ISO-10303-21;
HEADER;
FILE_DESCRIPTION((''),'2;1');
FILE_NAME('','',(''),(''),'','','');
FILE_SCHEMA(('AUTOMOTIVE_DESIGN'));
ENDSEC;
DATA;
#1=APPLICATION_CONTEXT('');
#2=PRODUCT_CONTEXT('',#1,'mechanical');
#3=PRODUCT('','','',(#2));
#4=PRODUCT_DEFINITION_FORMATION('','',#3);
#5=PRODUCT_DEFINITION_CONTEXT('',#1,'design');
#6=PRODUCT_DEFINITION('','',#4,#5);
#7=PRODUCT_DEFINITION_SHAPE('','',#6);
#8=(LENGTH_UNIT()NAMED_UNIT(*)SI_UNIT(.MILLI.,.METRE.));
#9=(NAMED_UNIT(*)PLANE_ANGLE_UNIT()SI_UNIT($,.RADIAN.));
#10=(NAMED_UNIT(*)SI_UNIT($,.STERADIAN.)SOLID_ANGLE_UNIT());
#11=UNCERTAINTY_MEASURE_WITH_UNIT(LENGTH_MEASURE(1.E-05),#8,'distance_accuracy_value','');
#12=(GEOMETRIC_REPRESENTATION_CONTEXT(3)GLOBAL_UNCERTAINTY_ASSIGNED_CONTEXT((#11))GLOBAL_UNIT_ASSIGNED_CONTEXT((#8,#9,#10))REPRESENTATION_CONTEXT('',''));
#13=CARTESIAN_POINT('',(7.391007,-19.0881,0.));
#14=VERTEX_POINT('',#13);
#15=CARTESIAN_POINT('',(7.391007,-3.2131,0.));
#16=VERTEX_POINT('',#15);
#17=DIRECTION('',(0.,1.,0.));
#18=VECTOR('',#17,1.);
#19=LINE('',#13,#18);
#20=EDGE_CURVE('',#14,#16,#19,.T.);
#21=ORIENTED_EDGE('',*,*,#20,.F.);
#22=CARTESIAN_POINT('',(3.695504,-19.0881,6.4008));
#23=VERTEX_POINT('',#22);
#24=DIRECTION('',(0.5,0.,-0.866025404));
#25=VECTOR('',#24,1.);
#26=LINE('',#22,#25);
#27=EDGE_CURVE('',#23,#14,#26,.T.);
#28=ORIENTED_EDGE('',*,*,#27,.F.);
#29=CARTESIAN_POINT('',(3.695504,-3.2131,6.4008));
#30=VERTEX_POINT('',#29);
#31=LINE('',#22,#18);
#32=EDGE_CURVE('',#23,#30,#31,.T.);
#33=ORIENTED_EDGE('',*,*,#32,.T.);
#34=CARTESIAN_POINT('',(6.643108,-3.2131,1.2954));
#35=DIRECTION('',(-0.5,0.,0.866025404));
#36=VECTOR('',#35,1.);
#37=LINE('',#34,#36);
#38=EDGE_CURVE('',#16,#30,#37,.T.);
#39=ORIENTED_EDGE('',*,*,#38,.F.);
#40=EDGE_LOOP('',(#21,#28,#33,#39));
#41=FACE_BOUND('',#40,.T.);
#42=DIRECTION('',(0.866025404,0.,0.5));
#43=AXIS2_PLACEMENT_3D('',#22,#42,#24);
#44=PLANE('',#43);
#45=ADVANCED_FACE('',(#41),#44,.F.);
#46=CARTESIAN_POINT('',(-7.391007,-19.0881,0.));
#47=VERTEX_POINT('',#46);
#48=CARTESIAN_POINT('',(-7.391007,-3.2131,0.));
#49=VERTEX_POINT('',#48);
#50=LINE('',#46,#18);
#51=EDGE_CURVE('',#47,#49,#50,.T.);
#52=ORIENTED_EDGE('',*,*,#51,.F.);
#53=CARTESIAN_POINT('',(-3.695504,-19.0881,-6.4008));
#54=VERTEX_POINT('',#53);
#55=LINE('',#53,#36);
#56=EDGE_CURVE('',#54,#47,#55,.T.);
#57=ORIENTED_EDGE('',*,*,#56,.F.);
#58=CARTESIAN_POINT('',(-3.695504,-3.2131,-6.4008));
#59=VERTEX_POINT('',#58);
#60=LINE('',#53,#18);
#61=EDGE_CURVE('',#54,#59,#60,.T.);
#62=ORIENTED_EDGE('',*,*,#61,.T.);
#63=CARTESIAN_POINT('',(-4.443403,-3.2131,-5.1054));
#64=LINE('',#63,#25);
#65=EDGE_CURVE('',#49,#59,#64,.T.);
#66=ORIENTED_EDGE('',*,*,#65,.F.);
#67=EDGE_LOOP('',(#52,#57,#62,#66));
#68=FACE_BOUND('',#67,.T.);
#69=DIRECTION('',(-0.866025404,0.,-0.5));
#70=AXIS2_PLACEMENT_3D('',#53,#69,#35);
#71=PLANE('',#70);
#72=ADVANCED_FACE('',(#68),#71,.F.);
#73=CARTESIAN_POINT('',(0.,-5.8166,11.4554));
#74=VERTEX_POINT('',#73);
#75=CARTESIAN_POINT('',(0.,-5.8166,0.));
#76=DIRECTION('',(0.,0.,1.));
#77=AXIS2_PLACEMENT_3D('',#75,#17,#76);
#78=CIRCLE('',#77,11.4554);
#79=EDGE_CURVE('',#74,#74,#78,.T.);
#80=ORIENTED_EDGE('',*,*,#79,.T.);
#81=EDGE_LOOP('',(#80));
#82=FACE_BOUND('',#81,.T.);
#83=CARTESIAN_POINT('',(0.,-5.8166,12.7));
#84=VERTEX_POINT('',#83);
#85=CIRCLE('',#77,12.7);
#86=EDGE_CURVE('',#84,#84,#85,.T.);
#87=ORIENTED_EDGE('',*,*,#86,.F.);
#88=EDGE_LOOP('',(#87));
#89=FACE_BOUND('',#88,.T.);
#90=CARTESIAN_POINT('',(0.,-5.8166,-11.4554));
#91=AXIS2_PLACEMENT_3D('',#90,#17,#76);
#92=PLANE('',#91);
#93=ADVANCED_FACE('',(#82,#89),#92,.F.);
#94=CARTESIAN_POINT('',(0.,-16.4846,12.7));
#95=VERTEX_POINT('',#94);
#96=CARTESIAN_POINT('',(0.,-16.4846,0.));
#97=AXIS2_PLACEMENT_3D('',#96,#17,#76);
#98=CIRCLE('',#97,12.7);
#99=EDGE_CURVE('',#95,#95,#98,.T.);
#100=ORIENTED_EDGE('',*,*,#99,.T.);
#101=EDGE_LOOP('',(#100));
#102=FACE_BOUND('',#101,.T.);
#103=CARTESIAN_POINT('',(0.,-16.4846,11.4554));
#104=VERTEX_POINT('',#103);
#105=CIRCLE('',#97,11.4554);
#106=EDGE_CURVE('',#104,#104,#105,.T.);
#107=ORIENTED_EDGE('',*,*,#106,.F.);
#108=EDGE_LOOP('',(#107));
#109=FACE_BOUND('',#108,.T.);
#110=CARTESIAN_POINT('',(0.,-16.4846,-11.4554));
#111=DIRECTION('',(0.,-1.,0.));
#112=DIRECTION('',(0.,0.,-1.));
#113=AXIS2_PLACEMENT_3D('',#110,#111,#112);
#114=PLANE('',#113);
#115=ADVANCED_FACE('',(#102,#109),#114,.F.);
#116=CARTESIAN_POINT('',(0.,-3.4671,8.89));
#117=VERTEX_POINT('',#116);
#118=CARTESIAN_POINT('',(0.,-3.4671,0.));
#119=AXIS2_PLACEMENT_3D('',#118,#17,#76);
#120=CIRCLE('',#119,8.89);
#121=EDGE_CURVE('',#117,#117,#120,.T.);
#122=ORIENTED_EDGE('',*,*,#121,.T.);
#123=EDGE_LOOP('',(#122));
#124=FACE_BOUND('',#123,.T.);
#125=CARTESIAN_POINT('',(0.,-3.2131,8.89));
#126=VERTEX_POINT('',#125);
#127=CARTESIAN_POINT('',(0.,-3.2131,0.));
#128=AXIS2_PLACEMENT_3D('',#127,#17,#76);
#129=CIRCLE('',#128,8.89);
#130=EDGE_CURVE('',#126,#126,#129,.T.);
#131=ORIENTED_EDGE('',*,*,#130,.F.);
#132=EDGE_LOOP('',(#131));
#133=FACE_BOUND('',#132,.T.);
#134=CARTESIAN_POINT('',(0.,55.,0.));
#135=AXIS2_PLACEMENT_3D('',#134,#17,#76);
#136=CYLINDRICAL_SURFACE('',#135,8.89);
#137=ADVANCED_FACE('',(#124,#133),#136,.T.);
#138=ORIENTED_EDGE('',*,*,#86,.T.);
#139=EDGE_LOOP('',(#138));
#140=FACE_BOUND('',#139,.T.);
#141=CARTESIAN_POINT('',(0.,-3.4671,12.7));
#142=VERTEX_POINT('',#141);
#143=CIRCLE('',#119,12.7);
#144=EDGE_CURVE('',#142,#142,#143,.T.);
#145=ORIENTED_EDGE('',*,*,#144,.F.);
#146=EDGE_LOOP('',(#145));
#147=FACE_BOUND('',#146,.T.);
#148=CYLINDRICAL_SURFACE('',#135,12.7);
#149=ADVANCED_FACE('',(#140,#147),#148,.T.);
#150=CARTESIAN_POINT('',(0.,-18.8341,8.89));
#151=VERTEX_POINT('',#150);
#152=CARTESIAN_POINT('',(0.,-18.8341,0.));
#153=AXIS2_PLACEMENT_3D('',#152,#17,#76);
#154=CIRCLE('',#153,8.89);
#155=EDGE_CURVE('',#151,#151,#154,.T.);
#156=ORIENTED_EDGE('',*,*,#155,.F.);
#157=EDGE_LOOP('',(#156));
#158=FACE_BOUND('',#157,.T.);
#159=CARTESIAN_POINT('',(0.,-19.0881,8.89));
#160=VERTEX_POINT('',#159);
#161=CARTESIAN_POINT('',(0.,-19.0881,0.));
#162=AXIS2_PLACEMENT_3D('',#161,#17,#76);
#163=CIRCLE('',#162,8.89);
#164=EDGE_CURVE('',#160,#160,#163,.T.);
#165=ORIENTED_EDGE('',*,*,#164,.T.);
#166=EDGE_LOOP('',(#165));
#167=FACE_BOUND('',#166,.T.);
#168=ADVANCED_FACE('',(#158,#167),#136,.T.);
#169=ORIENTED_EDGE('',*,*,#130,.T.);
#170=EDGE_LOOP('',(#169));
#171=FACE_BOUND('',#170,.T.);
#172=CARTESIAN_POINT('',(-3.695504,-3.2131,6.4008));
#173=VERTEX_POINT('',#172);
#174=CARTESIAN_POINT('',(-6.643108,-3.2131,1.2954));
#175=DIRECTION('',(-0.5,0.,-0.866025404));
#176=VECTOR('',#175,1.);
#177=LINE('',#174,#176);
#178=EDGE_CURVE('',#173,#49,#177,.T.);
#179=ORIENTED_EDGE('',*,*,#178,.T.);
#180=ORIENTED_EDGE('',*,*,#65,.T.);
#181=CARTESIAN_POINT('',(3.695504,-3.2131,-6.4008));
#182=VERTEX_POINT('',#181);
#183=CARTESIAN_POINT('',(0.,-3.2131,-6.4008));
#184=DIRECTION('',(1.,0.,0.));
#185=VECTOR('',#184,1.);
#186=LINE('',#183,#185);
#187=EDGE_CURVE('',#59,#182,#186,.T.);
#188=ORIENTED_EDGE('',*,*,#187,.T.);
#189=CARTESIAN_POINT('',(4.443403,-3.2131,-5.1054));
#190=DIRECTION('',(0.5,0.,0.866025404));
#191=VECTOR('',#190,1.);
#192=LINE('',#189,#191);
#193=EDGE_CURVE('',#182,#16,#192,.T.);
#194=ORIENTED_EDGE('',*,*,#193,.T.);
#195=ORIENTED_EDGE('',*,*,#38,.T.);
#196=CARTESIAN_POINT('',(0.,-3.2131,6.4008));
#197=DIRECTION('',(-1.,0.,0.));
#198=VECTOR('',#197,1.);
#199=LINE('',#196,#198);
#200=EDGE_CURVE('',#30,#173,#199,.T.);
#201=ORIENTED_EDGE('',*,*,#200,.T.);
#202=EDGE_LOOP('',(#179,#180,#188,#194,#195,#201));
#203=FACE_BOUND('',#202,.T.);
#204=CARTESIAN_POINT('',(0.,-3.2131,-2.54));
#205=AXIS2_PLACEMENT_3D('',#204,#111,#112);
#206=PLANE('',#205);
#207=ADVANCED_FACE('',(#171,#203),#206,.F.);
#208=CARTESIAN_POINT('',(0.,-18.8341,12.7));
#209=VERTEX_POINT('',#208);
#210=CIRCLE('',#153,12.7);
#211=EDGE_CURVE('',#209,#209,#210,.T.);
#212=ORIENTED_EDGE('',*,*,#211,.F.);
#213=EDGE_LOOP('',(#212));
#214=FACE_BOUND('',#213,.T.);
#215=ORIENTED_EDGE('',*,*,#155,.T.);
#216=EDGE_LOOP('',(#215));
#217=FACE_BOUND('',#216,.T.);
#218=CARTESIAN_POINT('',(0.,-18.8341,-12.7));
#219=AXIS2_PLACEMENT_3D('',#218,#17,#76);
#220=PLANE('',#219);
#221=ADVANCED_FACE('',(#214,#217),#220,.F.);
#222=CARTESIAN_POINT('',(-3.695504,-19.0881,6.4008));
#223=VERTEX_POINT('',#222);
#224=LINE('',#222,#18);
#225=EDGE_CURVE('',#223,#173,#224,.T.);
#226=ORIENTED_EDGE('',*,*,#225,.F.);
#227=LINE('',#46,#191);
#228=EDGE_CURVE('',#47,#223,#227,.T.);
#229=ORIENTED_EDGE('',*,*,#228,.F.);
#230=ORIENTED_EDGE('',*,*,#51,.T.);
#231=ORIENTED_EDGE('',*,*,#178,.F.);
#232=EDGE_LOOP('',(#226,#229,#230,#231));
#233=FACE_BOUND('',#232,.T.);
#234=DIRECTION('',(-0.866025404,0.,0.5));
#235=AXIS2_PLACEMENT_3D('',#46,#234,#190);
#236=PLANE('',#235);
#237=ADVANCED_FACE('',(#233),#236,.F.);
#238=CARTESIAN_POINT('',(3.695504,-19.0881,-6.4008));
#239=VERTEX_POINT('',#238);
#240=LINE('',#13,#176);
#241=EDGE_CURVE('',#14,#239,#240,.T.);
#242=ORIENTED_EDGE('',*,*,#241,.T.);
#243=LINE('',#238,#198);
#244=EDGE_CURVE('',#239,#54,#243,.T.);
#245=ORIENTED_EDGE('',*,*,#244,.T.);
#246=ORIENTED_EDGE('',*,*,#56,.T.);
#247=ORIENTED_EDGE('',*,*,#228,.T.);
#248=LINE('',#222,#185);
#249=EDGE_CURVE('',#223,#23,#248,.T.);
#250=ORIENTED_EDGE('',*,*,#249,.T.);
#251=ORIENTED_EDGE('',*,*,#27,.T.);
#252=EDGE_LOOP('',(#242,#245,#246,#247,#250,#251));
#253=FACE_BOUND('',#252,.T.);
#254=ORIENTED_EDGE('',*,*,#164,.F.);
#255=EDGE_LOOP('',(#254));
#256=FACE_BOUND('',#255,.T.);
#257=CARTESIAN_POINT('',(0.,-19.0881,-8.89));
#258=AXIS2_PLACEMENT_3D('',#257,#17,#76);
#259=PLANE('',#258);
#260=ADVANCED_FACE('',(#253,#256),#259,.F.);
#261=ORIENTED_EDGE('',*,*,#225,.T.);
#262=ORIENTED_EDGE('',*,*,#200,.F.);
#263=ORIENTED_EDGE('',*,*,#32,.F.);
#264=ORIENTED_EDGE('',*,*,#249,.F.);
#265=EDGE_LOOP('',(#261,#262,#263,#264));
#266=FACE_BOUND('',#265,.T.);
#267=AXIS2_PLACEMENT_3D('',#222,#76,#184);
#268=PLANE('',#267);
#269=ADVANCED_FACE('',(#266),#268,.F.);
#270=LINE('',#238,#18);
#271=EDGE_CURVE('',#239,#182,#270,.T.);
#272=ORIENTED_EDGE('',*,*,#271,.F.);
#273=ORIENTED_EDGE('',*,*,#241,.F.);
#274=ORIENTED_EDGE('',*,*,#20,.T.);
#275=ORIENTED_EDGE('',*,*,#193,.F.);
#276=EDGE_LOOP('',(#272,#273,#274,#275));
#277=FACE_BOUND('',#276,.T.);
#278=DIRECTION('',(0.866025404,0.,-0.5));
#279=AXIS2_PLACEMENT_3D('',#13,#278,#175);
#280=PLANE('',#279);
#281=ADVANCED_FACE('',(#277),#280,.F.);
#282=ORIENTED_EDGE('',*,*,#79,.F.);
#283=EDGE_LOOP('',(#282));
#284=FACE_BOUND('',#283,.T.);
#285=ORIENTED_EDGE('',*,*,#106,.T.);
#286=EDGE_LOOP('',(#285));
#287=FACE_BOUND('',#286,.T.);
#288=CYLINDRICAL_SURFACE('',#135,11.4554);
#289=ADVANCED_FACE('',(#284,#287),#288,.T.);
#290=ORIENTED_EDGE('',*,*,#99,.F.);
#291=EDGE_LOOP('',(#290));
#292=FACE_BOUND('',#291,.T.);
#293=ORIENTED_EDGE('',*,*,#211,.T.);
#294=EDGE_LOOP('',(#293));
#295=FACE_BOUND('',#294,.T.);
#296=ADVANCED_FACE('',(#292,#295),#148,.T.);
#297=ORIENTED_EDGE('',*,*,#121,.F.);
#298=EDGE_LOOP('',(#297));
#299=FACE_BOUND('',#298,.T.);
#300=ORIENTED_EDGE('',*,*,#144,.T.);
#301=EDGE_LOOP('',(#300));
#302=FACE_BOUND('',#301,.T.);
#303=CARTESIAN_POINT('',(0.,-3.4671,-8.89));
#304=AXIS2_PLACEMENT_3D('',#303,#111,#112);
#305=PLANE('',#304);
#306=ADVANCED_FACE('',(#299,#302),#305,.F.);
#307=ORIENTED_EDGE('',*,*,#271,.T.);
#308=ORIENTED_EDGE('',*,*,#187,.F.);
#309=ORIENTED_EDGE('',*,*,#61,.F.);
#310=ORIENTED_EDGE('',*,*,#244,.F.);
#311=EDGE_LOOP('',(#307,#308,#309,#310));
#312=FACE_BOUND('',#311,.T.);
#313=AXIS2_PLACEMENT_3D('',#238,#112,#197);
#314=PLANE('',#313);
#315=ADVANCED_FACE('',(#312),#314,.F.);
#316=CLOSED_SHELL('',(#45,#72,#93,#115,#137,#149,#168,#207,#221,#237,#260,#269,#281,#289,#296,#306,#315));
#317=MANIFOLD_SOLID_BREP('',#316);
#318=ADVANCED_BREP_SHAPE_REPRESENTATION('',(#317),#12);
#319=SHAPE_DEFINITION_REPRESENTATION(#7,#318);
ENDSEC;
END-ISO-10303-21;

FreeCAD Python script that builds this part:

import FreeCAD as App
import Part
import Sketcher
from FreeCAD import Vector
Q = App.Units.Quantity


def add_polygon(sketch, points):
    """Adds a closed chain of lines whose ends are joined by coincident constraints."""
    first, n = sketch.GeometryCount, len(points)
    for a, b in zip(points, points[1:] + points[:1]):
        sketch.addGeometry(Part.LineSegment(App.Vector(*a, 0), App.Vector(*b, 0)), False)
    for i in range(n):
        sketch.addConstraint(Sketcher.Constraint("Coincident", first + i, 2, first + (i + 1) % n, 1))

doc = App.newDocument("Part")
body = doc.addObject("PartDesign::Body", "Body")

# Sketch on YZ plane
sketch1 = doc.addObject("Sketcher::SketchObject", "Sketch")
body.addObject(sketch1)
sketch1.AttachmentSupport = (doc.YZ_Plane, [""])
sketch1.MapMode = "FlatFace"
add_polygon(sketch1, [(-3.21, -8.89), (-3.21, -2.54), (-19.09, -2.54), (-19.09, -8.89), (-18.83, -8.89), (-18.83, -12.7), (-16.48, -12.7), (-16.48, -11.46), (-5.82, -11.46), (-5.82, -12.7), (-3.47, -12.7), (-3.47, -8.89)])  # lines 0-11
sketch1.addConstraint([
    Sketcher.Constraint("Vertical", 0),
    Sketcher.Constraint("Horizontal", 1),
    Sketcher.Constraint("Vertical", 2),
    Sketcher.Constraint("Horizontal", 3),
    Sketcher.Constraint("Vertical", 4),
    Sketcher.Constraint("Horizontal", 5),
    Sketcher.Constraint("Vertical", 6),
    Sketcher.Constraint("Horizontal", 7),
    Sketcher.Constraint("Vertical", 8),
    Sketcher.Constraint("Horizontal", 9),
    Sketcher.Constraint("Vertical", 10),
    Sketcher.Constraint("Horizontal", 11),
    Sketcher.Constraint("Horizontal", 5, 2, 8, 2),
    Sketcher.Constraint("Horizontal", 3, 2, 10, 2),
    Sketcher.Constraint("Equal", 5, 9),
    Sketcher.Constraint("Equal", 3, 11),
    Sketcher.Constraint("DistanceX", 3, 1, 3, 2, Q("0.01 in")),
    Sketcher.Constraint("DistanceX", 7, 1, 7, 2, Q("0.42 in")),
    Sketcher.Constraint("DistanceY", 0, 1, 0, 2, Q("0.25 in")),
    Sketcher.Constraint("DistanceY", 4, 2, 4, 1, Q("0.15 in")),
    Sketcher.Constraint("DistanceY", 0, 2, -1, 1, Q("0.1 in")),
    Sketcher.Constraint("DistanceX", 1, 2, 1, 1, Q("0.625 in")),
    Sketcher.Constraint("DistanceY", 6, 1, 6, 2, Q("0.049 in")),
    Sketcher.Constraint("DistanceX", 5, 2, -1, 1, Q("0.649 in")),
])
revolution = doc.addObject("PartDesign::Revolution", "Revolution")
body.addObject(revolution)
revolution.Profile = sketch1
revolution.ReferenceAxis = (sketch1, ["H_Axis"])
revolution.Angle = 360

# Sketch on XZ plane
sketch2 = doc.addObject("Sketcher::SketchObject", "Sketch001")
body.addObject(sketch2)
sketch2.AttachmentSupport = (doc.XZ_Plane, [""])
sketch2.MapMode = "FlatFace"
sketch2.AttachmentOffset = App.Placement(Vector(0, 0, 0.1265 * 25.4), App.Rotation())
add_polygon(sketch2, [(4, -6), (-4, -6), (-7, 0), (-4, 6), (4, 6), (7, 0)])  # lines 0-5
sketch2.addConstraint([
    Sketcher.Constraint("Horizontal", 0),
    Sketcher.Constraint("Horizontal", 3),
    Sketcher.Constraint("Symmetric", 0, 2, 3, 2, -1, 1),
    Sketcher.Constraint("Symmetric", 1, 2, 4, 2, -1, 1),
    Sketcher.Constraint("PointOnObject", 1, 2, -1),
    Sketcher.Constraint("Parallel", 2, 5),
    Sketcher.Constraint("Vertical", 0, 2, 2, 2),
    Sketcher.Constraint("Angle", 1, Q("120 deg")),
    Sketcher.Constraint("DistanceY", 0, 2, -1, 1, Q("0.252 in")),
    Sketcher.Constraint("DistanceX", 0, 2, 0, 1, Q("7.391007 mm")),
])
pocket1 = doc.addObject("PartDesign::Pocket", "Pocket")
body.addObject(pocket1)
pocket1.Profile = sketch2
pocket1.Type = "ThroughAll"
pocket1.Midplane = True

doc.recompute()
